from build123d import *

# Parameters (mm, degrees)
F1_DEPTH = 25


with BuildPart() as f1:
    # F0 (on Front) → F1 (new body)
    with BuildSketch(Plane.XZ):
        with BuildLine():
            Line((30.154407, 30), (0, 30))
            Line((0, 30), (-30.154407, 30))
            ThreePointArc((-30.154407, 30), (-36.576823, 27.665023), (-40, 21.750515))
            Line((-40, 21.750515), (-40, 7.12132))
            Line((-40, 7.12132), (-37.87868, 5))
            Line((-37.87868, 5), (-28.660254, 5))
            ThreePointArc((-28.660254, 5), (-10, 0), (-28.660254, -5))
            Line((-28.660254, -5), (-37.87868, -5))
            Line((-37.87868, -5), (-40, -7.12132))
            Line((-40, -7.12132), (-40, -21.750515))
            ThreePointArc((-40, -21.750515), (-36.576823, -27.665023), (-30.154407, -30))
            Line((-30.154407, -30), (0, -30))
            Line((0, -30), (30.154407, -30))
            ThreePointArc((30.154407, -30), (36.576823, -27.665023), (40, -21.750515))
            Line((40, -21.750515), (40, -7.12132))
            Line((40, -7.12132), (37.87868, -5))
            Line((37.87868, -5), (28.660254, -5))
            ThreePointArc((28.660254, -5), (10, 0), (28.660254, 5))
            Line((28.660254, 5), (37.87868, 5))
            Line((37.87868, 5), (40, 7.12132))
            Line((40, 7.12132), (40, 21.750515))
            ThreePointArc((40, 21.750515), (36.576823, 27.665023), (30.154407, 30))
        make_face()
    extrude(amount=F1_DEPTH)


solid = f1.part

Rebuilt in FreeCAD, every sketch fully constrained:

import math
import FreeCAD as App
import Part
import Sketcher
from FreeCAD import Vector
Q = App.Units.Quantity

doc = App.newDocument("Part")
body = doc.addObject("PartDesign::Body", "Body")

sketch1 = body.newObject("Sketcher::SketchObject", "Sketch")
sketch1.AttachmentSupport = (doc.getObject("XZ_Plane"), [""])
sketch1.MapMode = "FlatFace"
sketch1.addGeometry([
    Part.LineSegment(Vector(30.2, 30, 0), Vector(-30.2, 30, 0)),
    Part.ArcOfCircle(Part.Circle(Vector(-30.2, 20, 0), Vector(0, 0, 1), 10), math.radians(90), math.radians(170)),
    Part.LineSegment(Vector(-40, 21.8, 0), Vector(-40, 7.1, 0)),
    Part.LineSegment(Vector(-40, 7.1, 0), Vector(-37.9, 5, 0)),
    Part.LineSegment(Vector(-37.9, 5, 0), Vector(-28.7, 5, 0)),
    Part.ArcOfCircle(Part.Circle(Vector(-20, 0, 0), Vector(0, 0, 1), 10), math.radians(-150), math.radians(150)),
    Part.LineSegment(Vector(-28.7, -5, 0), Vector(-37.9, -5, 0)),
    Part.LineSegment(Vector(-37.9, -5, 0), Vector(-40, -7.1, 0)),
    Part.LineSegment(Vector(-40, -7.1, 0), Vector(-40, -21.8, 0)),
    Part.ArcOfCircle(Part.Circle(Vector(-30.2, -20, 0), Vector(0, 0, 1), 10), math.radians(-170), math.radians(-90)),
    Part.LineSegment(Vector(-30.2, -30, 0), Vector(30.2, -30, 0)),
    Part.ArcOfCircle(Part.Circle(Vector(30.2, -20, 0), Vector(0, 0, 1), 10), math.radians(-90), math.radians(-10)),
    Part.LineSegment(Vector(40, -21.8, 0), Vector(40, -7.1, 0)),
    Part.LineSegment(Vector(40, -7.1, 0), Vector(37.9, -5, 0)),
    Part.LineSegment(Vector(37.9, -5, 0), Vector(28.7, -5, 0)),
    Part.ArcOfCircle(Part.Circle(Vector(20, 0, 0), Vector(0, 0, 1), 10), math.radians(30), math.radians(330)),
    Part.LineSegment(Vector(28.7, 5, 0), Vector(37.9, 5, 0)),
    Part.LineSegment(Vector(37.9, 5, 0), Vector(40, 7.1, 0)),
    Part.LineSegment(Vector(40, 7.1, 0), Vector(40, 21.8, 0)),
    Part.ArcOfCircle(Part.Circle(Vector(30.2, 20, 0), Vector(0, 0, 1), 10), math.radians(10), math.radians(90)),
], False)
sketch1.addConstraint([
    Sketcher.Constraint("Tangent", 0, 2, 1, 1),
    Sketcher.Constraint("Coincident", 1, 2, 2, 1),
    Sketcher.Constraint("Coincident", 2, 2, 3, 1),
    Sketcher.Constraint("Coincident", 3, 2, 4, 1),
    Sketcher.Constraint("Coincident", 4, 2, 5, 2),
    Sketcher.Constraint("Coincident", 5, 1, 6, 1),
    Sketcher.Constraint("Coincident", 6, 2, 7, 1),
    Sketcher.Constraint("Coincident", 7, 2, 8, 1),
    Sketcher.Constraint("Coincident", 8, 2, 9, 1),
    Sketcher.Constraint("Tangent", 9, 2, 10, 1),
    Sketcher.Constraint("Tangent", 10, 2, 11, 1),
    Sketcher.Constraint("Coincident", 11, 2, 12, 1),
    Sketcher.Constraint("Coincident", 12, 2, 13, 1),
    Sketcher.Constraint("Coincident", 13, 2, 14, 1),
    Sketcher.Constraint("Coincident", 14, 2, 15, 2),
    Sketcher.Constraint("Coincident", 15, 1, 16, 1),
    Sketcher.Constraint("Coincident", 16, 2, 17, 1),
    Sketcher.Constraint("Coincident", 17, 2, 18, 1),
    Sketcher.Constraint("Coincident", 18, 2, 19, 1),
    Sketcher.Constraint("Tangent", 19, 2, 0, 1),
    Sketcher.Constraint("Horizontal", 0),
    Sketcher.Constraint("Vertical", 2),
    Sketcher.Constraint("Horizontal", 4),
    Sketcher.Constraint("Horizontal", 6),
    Sketcher.Constraint("Vertical", 8),
    Sketcher.Constraint("Horizontal", 10),
    Sketcher.Constraint("Vertical", 12),
    Sketcher.Constraint("Horizontal", 14),
    Sketcher.Constraint("Horizontal", 16),
    Sketcher.Constraint("Vertical", 18),
    Sketcher.Constraint("Equal", 1, 5),
    Sketcher.Constraint("Equal", 5, 9),
    Sketcher.Constraint("Equal", 9, 11),
    Sketcher.Constraint("Equal", 11, 15),
    Sketcher.Constraint("Equal", 15, 19),
    Sketcher.Constraint("Symmetric", 1, 3, 11, 3, -1, 1),
    Sketcher.Constraint("Symmetric", 5, 3, 15, 3, -1, 1),
    Sketcher.Constraint("Symmetric", 2, 2, 12, 2, -1, 1),
    Sketcher.Constraint("Symmetric", 3, 2, 13, 2, -1, 1),
    Sketcher.Constraint("Symmetric", 6, 2, 16, 2, -1, 1),
    Sketcher.Constraint("Symmetric", 7, 2, 17, 2, -1, 1),
    Sketcher.Constraint("Symmetric", 8, 2, 11, 2, -2),
    Sketcher.Constraint("Symmetric", 6, 2, 13, 2, -2),
    Sketcher.Constraint("PointOnObject", 5, 3, -1),
    Sketcher.Constraint("Perpendicular", 3, 7),
    Sketcher.Constraint("Horizontal", 7, 2, 12, 2),
    Sketcher.Constraint("Horizontal", 1, 2, 18, 2),
    Sketcher.Constraint("Radius", 1, Q("10 mm")),
    Sketcher.Constraint("Distance", 3, Q("3 mm")),
    Sketcher.Constraint("DistanceY", -1, 1, 1, 3, Q("20 mm")),
    Sketcher.Constraint("DistanceX", 5, 3, -1, 1, Q("20 mm")),
    Sketcher.Constraint("DistanceX", 1, 2, -1, 1, Q("40 mm")),
    Sketcher.Constraint("DistanceY", -1, 1, 3, 2, Q("5 mm")),
    Sketcher.Constraint("DistanceX", 0, 2, 0, 1, Q("60.308814 mm")),
])
pad1 = body.newObject("PartDesign::Pad", "Pad")
pad1.Profile = sketch1
pad1.Length = 25

doc.recompute()
